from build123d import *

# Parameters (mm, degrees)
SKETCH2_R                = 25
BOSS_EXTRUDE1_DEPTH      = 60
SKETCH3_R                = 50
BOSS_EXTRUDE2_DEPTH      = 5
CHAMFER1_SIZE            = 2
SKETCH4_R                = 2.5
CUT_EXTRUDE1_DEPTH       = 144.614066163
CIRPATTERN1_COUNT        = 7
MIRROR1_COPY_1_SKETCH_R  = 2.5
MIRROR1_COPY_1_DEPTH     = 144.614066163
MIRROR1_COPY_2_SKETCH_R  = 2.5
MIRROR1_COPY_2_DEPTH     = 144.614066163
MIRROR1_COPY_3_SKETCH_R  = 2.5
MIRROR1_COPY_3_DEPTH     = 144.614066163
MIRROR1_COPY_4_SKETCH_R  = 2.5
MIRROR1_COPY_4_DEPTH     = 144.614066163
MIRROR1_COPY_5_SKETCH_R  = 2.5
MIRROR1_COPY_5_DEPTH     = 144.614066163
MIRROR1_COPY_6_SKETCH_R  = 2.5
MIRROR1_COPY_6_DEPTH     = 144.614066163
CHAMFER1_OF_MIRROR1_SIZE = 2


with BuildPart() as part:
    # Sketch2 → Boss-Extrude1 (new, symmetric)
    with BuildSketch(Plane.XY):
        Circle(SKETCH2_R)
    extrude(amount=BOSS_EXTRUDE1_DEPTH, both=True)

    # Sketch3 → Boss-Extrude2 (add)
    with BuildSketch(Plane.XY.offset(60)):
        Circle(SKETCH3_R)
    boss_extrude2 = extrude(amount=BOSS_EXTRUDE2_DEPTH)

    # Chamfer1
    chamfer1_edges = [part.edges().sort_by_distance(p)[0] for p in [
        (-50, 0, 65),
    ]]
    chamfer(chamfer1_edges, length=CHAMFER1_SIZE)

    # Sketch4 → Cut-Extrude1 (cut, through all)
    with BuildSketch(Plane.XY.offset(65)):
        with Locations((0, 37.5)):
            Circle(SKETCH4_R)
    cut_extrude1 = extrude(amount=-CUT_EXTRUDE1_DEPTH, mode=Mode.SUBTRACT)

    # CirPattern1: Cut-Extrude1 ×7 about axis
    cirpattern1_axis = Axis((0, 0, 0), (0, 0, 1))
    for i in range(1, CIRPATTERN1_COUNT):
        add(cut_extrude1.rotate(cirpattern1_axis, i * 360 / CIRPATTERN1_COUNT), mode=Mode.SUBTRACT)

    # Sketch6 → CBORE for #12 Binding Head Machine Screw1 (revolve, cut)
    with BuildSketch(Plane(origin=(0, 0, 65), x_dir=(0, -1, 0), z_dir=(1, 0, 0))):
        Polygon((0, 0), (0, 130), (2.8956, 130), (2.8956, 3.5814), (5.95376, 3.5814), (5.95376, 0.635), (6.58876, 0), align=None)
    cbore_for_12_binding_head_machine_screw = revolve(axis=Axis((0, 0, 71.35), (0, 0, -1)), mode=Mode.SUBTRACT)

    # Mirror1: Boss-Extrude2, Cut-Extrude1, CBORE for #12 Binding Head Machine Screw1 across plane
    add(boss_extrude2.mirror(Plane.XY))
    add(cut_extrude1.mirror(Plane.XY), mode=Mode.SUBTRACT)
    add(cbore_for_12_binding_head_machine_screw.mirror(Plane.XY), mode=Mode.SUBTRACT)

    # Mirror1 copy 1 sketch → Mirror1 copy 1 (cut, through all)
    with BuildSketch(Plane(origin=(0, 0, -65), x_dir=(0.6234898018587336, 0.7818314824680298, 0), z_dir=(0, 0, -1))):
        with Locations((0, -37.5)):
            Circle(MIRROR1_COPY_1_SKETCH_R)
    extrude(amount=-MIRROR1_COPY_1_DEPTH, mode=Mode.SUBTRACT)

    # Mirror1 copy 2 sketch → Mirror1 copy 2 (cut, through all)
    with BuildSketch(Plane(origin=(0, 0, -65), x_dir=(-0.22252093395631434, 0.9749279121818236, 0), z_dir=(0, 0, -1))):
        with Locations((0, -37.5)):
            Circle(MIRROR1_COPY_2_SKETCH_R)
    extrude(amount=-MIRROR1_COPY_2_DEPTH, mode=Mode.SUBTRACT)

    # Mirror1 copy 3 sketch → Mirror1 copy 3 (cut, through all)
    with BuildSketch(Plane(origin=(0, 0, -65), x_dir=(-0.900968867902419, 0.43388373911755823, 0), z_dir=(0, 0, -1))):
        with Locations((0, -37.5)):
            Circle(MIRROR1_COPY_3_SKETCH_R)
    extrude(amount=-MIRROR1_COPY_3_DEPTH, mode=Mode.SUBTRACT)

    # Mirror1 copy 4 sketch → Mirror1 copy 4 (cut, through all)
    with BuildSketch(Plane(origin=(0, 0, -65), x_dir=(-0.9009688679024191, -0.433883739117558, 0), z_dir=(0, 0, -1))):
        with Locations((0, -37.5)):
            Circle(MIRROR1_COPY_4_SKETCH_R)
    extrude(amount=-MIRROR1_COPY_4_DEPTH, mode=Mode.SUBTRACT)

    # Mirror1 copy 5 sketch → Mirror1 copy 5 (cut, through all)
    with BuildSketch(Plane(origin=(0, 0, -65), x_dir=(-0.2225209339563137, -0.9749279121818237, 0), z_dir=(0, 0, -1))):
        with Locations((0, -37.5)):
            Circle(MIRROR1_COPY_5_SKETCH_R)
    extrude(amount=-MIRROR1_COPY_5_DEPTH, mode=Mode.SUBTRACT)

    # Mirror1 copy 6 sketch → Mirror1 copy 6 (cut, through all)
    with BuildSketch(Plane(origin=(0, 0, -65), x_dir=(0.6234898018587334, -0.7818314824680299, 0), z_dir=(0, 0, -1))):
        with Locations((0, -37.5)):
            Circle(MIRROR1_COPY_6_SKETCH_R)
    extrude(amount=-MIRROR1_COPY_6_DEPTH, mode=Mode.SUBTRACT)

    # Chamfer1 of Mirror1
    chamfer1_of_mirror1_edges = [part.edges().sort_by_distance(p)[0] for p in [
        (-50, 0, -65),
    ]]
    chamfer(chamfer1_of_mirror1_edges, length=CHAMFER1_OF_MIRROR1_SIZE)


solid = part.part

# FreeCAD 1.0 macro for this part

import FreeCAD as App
import Part
import Sketcher

V = App.Vector
Q = App.Units.Quantity


def edges_at(feature, points):
    """Names of the edges that pass closest to the given points."""
    edges = feature.Shape.Edges
    near = lambda p: min(range(len(edges)), key=lambda i: edges[i].distToShape(Part.Vertex(*p))[0])
    return sorted({f"Edge{near(p) + 1}" for p in points})


def add_polygon(sketch, points):
    """Adds a closed chain of lines whose ends are joined by coincident constraints."""
    first, n = sketch.GeometryCount, len(points)
    for a, b in zip(points, points[1:] + points[:1]):
        sketch.addGeometry(Part.LineSegment(App.Vector(*a, 0), App.Vector(*b, 0)), False)
    for i in range(n):
        sketch.addConstraint(Sketcher.Constraint("Coincident", first + i, 2, first + (i + 1) % n, 1))

doc = App.newDocument("Part")
body = doc.addObject("PartDesign::Body", "Body")

# Sketch on XY plane
sketch1 = body.newObject("Sketcher::SketchObject", "Sketch")
sketch1.AttachmentSupport = (doc.getObject("XY_Plane"), [""])
sketch1.MapMode = "FlatFace"
sketch1.addGeometry(Part.Circle(V(0, 0, 0), V(0, 0, 1), 25), False)
sketch1.addConstraint(Sketcher.Constraint("Coincident", 0, 3, -1, 1))
sketch1.addConstraint(Sketcher.Constraint("Diameter", 0, Q("50 mm")))
pad1 = body.newObject("PartDesign::Pad", "Pad")
pad1.Profile = sketch1
pad1.Length = 120
pad1.Midplane = True

# Sketch on XY plane
sketch2 = body.newObject("Sketcher::SketchObject", "Sketch001")
sketch2.AttachmentSupport = (doc.getObject("XY_Plane"), [""])
sketch2.MapMode = "FlatFace"
sketch2.AttachmentOffset = App.Placement(V(0, 0, 60), App.Rotation())
sketch2.addGeometry(Part.Circle(V(0, 0, 0), V(0, 0, 1), 50), False)
sketch2.addConstraint(Sketcher.Constraint("Coincident", 0, 3, -1, 1))
sketch2.addConstraint(Sketcher.Constraint("Diameter", 0, Q("100 mm")))
pad2 = body.newObject("PartDesign::Pad", "Pad001")
pad2.Profile = sketch2
pad2.Length = 5
doc.recompute()

chamfer = body.newObject("PartDesign::Chamfer", "Chamfer")
chamfer.Base = (pad2, edges_at(pad2, [(-50, 0, 65)]))
chamfer.Size = 2

# Sketch on XY plane
sketch3 = body.newObject("Sketcher::SketchObject", "Sketch002")
sketch3.AttachmentSupport = (doc.getObject("XY_Plane"), [""])
sketch3.MapMode = "FlatFace"
sketch3.AttachmentOffset = App.Placement(V(0, 0, 65), App.Rotation())
sketch3.addGeometry(Part.Circle(V(0, 37.5, 0), V(0, 0, 1), 2.5), False)
sketch3.addConstraint(Sketcher.Constraint("PointOnObject", 0, 3, -2))
sketch3.addConstraint(Sketcher.Constraint("Diameter", 0, Q("5 mm")))
sketch3.addConstraint(Sketcher.Constraint("DistanceY", -1, 1, 0, 3, Q("37.5 mm")))
pocket1 = body.newObject("PartDesign::Pocket", "Pocket")
pocket1.Profile = sketch3
pocket1.Type = "ThroughAll"
doc.recompute()

polarpattern = body.newObject("PartDesign::PolarPattern", "PolarPattern")
polarpattern.Originals = [pocket1]
polarpattern.Axis = (doc.getObject("Z_Axis"), [""])
polarpattern.Angle = 360
polarpattern.Occurrences = 7
body.Tip = polarpattern

# Sketch on YZ plane
sketch4 = body.newObject("Sketcher::SketchObject", "Sketch003")
sketch4.AttachmentSupport = (doc.getObject("YZ_Plane"), [""])
sketch4.MapMode = "FlatFace"
add_polygon(sketch4, [(0, -65), (0, 65), (-6.6, 65), (-6, 64.4), (-6, 61.4), (-2.9, 61.4), (-2.9, -65)])  # lines 0-6
sketch4.addConstraint(Sketcher.Constraint("Vertical", 0))
sketch4.addConstraint(Sketcher.Constraint("Horizontal", 1))
sketch4.addConstraint(Sketcher.Constraint("Vertical", 3))
sketch4.addConstraint(Sketcher.Constraint("Horizontal", 4))
sketch4.addConstraint(Sketcher.Constraint("Vertical", 5))
sketch4.addConstraint(Sketcher.Constraint("Horizontal", 6))
sketch4.addConstraint(Sketcher.Constraint("Symmetric", 0, 2, 6, 2, -1, 1))
sketch4.addConstraint(Sketcher.Constraint("DistanceY", 0, 1, 0, 2, Q("130 mm")))
sketch4.addConstraint(Sketcher.Constraint("Angle", 2, Q("-45 deg")))
sketch4.addConstraint(Sketcher.Constraint("DistanceX", 6, 1, 6, 2, Q("2.8956 mm")))
sketch4.addConstraint(Sketcher.Constraint("DistanceY", 3, 2, 3, 1, Q("2.9464 mm")))
sketch4.addConstraint(Sketcher.Constraint("DistanceY", 5, 2, 5, 1, Q("126.4186 mm")))
sketch4.addConstraint(Sketcher.Constraint("DistanceX", 1, 2, 1, 1, Q("6.58876 mm")))
groove = body.newObject("PartDesign::Groove", "Groove")
groove.Profile = sketch4
groove.ReferenceAxis = (sketch4, ["V_Axis"])
groove.Angle = 360
doc.recompute()

mirrored = body.newObject("PartDesign::Mirrored", "Mirrored")
mirrored.Originals = [pad2, pocket1, groove]
mirrored.MirrorPlane = (doc.getObject("XY_Plane"), [""])
body.Tip = mirrored

# Sketch on XY plane
sketch5 = body.newObject("Sketcher::SketchObject", "Sketch004")
sketch5.AttachmentSupport = (doc.getObject("XY_Plane"), [""])
sketch5.MapMode = "FlatFace"
sketch5.AttachmentOffset = App.Placement(V(0, 0, -65), App.Rotation())
sketch5.addGeometry(Part.Circle(V(-29.3, 23.4, 0), V(0, 0, 1), 2.5), False)
sketch5.addConstraint(Sketcher.Constraint("Diameter", 0, Q("5 mm")))
sketch5.addConstraint(Sketcher.Constraint("DistanceX", 0, 3, -1, 1, Q("29.318681 mm")))
sketch5.addConstraint(Sketcher.Constraint("DistanceY", -1, 1, 0, 3, Q("23.380868 mm")))
pocket2 = body.newObject("PartDesign::Pocket", "Pocket001")
pocket2.Profile = sketch5
pocket2.Type = "ThroughAll"
pocket2.Reversed = True

# Sketch on XY plane
sketch6 = body.newObject("Sketcher::SketchObject", "Sketch005")
sketch6.AttachmentSupport = (doc.getObject("XY_Plane"), [""])
sketch6.MapMode = "FlatFace"
sketch6.AttachmentOffset = App.Placement(V(0, 0, -65), App.Rotation())
sketch6.addGeometry(Part.Circle(V(-36.6, -8.3, 0), V(0, 0, 1), 2.5), False)
sketch6.addConstraint(Sketcher.Constraint("Diameter", 0, Q("5 mm")))
sketch6.addConstraint(Sketcher.Constraint("DistanceX", 0, 3, -1, 1, Q("36.559797 mm")))
sketch6.addConstraint(Sketcher.Constraint("DistanceY", 0, 3, -1, 1, Q("8.344535 mm")))
pocket3 = body.newObject("PartDesign::Pocket", "Pocket002")
pocket3.Profile = sketch6
pocket3.Type = "ThroughAll"
pocket3.Reversed = True

# Sketch on XY plane
sketch7 = body.newObject("Sketcher::SketchObject", "Sketch006")
sketch7.AttachmentSupport = (doc.getObject("XY_Plane"), [""])
sketch7.MapMode = "FlatFace"
sketch7.AttachmentOffset = App.Placement(V(0, 0, -65), App.Rotation())
sketch7.addGeometry(Part.Circle(V(-16.3, -33.8, 0), V(0, 0, 1), 2.5), False)
sketch7.addConstraint(Sketcher.Constraint("Diameter", 0, Q("5 mm")))
sketch7.addConstraint(Sketcher.Constraint("DistanceX", 0, 3, -1, 1, Q("16.27064 mm")))
sketch7.addConstraint(Sketcher.Constraint("DistanceY", 0, 3, -1, 1, Q("33.786333 mm")))
pocket4 = body.newObject("PartDesign::Pocket", "Pocket003")
pocket4.Profile = sketch7
pocket4.Type = "ThroughAll"
pocket4.Reversed = True

# Sketch on XY plane
sketch8 = body.newObject("Sketcher::SketchObject", "Sketch007")
sketch8.AttachmentSupport = (doc.getObject("XY_Plane"), [""])
sketch8.MapMode = "FlatFace"
sketch8.AttachmentOffset = App.Placement(V(0, 0, -65), App.Rotation())
sketch8.addGeometry(Part.Circle(V(16.3, -33.8, 0), V(0, 0, 1), 2.5), False)
sketch8.addConstraint(Sketcher.Constraint("Diameter", 0, Q("5 mm")))
sketch8.addConstraint(Sketcher.Constraint("DistanceX", -1, 1, 0, 3, Q("16.27064 mm")))
sketch8.addConstraint(Sketcher.Constraint("DistanceY", 0, 3, -1, 1, Q("33.786333 mm")))
pocket5 = body.newObject("PartDesign::Pocket", "Pocket004")
pocket5.Profile = sketch8
pocket5.Type = "ThroughAll"
pocket5.Reversed = True

# Sketch on XY plane
sketch9 = body.newObject("Sketcher::SketchObject", "Sketch008")
sketch9.AttachmentSupport = (doc.getObject("XY_Plane"), [""])
sketch9.MapMode = "FlatFace"
sketch9.AttachmentOffset = App.Placement(V(0, 0, -65), App.Rotation())
sketch9.addGeometry(Part.Circle(V(36.6, -8.3, 0), V(0, 0, 1), 2.5), False)
sketch9.addConstraint(Sketcher.Constraint("Diameter", 0, Q("5 mm")))
sketch9.addConstraint(Sketcher.Constraint("DistanceX", -1, 1, 0, 3, Q("36.559797 mm")))
sketch9.addConstraint(Sketcher.Constraint("DistanceY", 0, 3, -1, 1, Q("8.344535 mm")))
pocket6 = body.newObject("PartDesign::Pocket", "Pocket005")
pocket6.Profile = sketch9
pocket6.Type = "ThroughAll"
pocket6.Reversed = True

# Sketch on XY plane
sketch10 = body.newObject("Sketcher::SketchObject", "Sketch009")
sketch10.AttachmentSupport = (doc.getObject("XY_Plane"), [""])
sketch10.MapMode = "FlatFace"
sketch10.AttachmentOffset = App.Placement(V(0, 0, -65), App.Rotation())
sketch10.addGeometry(Part.Circle(V(29.3, 23.4, 0), V(0, 0, 1), 2.5), False)
sketch10.addConstraint(Sketcher.Constraint("Diameter", 0, Q("5 mm")))
sketch10.addConstraint(Sketcher.Constraint("DistanceX", -1, 1, 0, 3, Q("29.318681 mm")))
sketch10.addConstraint(Sketcher.Constraint("DistanceY", -1, 1, 0, 3, Q("23.380868 mm")))
pocket7 = body.newObject("PartDesign::Pocket", "Pocket006")
pocket7.Profile = sketch10
pocket7.Type = "ThroughAll"
pocket7.Reversed = True
doc.recompute()

chamfer2 = body.newObject("PartDesign::Chamfer", "Chamfer001")
chamfer2.Base = (pocket7, edges_at(pocket7, [(-50, 0, -65)]))
chamfer2.Size = 2

doc.recompute()
